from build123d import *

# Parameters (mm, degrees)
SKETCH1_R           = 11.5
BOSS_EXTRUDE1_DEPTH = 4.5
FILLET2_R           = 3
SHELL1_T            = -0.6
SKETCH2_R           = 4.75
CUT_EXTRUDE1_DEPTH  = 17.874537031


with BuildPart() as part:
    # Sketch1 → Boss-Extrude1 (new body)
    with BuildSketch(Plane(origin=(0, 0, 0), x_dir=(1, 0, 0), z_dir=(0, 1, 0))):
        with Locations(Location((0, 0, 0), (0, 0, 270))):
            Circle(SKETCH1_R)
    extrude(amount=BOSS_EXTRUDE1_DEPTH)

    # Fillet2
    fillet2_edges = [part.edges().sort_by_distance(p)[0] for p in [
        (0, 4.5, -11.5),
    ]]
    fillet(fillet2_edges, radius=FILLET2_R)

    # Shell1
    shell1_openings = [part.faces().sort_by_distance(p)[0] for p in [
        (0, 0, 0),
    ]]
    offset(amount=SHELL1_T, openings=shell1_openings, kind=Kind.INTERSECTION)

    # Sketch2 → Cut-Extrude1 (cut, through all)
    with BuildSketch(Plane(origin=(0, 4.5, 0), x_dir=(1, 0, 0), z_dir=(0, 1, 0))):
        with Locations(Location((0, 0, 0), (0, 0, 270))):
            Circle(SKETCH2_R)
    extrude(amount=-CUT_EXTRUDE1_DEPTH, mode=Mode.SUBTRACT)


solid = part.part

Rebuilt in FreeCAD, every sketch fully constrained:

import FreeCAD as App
import Part
import Sketcher

V = App.Vector


def edges_at(feature, points):
    """Names of the edges that pass closest to the given points."""
    edges = feature.Shape.Edges
    near = lambda p: min(range(len(edges)), key=lambda i: edges[i].distToShape(Part.Vertex(*p))[0])
    return sorted({f"Edge{near(p) + 1}" for p in points})


def faces_at(feature, points):
    """Names of the faces that lie closest to the given points."""
    faces = feature.Shape.Faces
    near = lambda p: min(range(len(faces)), key=lambda i: faces[i].distToShape(Part.Vertex(*p))[0])
    return sorted({f"Face{near(p) + 1}" for p in points})

doc = App.newDocument("Part")
body = doc.addObject("PartDesign::Body", "Body")

sketch1 = doc.addObject("Sketcher::SketchObject", "Sketch")
body.addObject(sketch1)
sketch1.AttachmentSupport = (doc.XZ_Plane, [""])
sketch1.MapMode = "FlatFace"
sketch1.addGeometry(Part.Circle(V(0, 0, 0), V(0, 0, 1), 12), False)
sketch1.addConstraint(Sketcher.Constraint("Coincident", 0, 3, -1, 1))
sketch1.addConstraint(Sketcher.Constraint("Diameter", 0, 23.0))
pad1 = doc.addObject("PartDesign::Pad", "Pad")
body.addObject(pad1)
pad1.Profile = sketch1
pad1.Length = 4.5
pad1.Reversed = True
doc.recompute()

fillet = doc.addObject("PartDesign::Fillet", "Fillet")
body.addObject(fillet)
fillet.Base = (pad1, edges_at(pad1, [(0, 4.5, -11.5)]))
fillet.Radius = 3
doc.recompute()

thickness = doc.addObject("PartDesign::Thickness", "Thickness")
body.addObject(thickness)
thickness.Base = (fillet, faces_at(fillet, [(0, 0, 0)]))
thickness.Value = 0.6
thickness.Reversed = True
thickness.Join = "Intersection"

sketch2 = doc.addObject("Sketcher::SketchObject", "Sketch001")
body.addObject(sketch2)
sketch2.AttachmentSupport = (doc.XZ_Plane, [""])
sketch2.MapMode = "FlatFace"
sketch2.AttachmentOffset = App.Placement(V(0, 0, -4.5), App.Rotation())
sketch2.addGeometry(Part.Circle(V(0, 0, 0), V(0, 0, 1), 4.8), False)
sketch2.addConstraint(Sketcher.Constraint("Coincident", 0, 3, -1, 1))
sketch2.addConstraint(Sketcher.Constraint("Diameter", 0, 9.5))
pocket1 = doc.addObject("PartDesign::Pocket", "Pocket")
body.addObject(pocket1)
pocket1.Profile = sketch2
pocket1.Type = "ThroughAll"
pocket1.Reversed = True

doc.recompute()
